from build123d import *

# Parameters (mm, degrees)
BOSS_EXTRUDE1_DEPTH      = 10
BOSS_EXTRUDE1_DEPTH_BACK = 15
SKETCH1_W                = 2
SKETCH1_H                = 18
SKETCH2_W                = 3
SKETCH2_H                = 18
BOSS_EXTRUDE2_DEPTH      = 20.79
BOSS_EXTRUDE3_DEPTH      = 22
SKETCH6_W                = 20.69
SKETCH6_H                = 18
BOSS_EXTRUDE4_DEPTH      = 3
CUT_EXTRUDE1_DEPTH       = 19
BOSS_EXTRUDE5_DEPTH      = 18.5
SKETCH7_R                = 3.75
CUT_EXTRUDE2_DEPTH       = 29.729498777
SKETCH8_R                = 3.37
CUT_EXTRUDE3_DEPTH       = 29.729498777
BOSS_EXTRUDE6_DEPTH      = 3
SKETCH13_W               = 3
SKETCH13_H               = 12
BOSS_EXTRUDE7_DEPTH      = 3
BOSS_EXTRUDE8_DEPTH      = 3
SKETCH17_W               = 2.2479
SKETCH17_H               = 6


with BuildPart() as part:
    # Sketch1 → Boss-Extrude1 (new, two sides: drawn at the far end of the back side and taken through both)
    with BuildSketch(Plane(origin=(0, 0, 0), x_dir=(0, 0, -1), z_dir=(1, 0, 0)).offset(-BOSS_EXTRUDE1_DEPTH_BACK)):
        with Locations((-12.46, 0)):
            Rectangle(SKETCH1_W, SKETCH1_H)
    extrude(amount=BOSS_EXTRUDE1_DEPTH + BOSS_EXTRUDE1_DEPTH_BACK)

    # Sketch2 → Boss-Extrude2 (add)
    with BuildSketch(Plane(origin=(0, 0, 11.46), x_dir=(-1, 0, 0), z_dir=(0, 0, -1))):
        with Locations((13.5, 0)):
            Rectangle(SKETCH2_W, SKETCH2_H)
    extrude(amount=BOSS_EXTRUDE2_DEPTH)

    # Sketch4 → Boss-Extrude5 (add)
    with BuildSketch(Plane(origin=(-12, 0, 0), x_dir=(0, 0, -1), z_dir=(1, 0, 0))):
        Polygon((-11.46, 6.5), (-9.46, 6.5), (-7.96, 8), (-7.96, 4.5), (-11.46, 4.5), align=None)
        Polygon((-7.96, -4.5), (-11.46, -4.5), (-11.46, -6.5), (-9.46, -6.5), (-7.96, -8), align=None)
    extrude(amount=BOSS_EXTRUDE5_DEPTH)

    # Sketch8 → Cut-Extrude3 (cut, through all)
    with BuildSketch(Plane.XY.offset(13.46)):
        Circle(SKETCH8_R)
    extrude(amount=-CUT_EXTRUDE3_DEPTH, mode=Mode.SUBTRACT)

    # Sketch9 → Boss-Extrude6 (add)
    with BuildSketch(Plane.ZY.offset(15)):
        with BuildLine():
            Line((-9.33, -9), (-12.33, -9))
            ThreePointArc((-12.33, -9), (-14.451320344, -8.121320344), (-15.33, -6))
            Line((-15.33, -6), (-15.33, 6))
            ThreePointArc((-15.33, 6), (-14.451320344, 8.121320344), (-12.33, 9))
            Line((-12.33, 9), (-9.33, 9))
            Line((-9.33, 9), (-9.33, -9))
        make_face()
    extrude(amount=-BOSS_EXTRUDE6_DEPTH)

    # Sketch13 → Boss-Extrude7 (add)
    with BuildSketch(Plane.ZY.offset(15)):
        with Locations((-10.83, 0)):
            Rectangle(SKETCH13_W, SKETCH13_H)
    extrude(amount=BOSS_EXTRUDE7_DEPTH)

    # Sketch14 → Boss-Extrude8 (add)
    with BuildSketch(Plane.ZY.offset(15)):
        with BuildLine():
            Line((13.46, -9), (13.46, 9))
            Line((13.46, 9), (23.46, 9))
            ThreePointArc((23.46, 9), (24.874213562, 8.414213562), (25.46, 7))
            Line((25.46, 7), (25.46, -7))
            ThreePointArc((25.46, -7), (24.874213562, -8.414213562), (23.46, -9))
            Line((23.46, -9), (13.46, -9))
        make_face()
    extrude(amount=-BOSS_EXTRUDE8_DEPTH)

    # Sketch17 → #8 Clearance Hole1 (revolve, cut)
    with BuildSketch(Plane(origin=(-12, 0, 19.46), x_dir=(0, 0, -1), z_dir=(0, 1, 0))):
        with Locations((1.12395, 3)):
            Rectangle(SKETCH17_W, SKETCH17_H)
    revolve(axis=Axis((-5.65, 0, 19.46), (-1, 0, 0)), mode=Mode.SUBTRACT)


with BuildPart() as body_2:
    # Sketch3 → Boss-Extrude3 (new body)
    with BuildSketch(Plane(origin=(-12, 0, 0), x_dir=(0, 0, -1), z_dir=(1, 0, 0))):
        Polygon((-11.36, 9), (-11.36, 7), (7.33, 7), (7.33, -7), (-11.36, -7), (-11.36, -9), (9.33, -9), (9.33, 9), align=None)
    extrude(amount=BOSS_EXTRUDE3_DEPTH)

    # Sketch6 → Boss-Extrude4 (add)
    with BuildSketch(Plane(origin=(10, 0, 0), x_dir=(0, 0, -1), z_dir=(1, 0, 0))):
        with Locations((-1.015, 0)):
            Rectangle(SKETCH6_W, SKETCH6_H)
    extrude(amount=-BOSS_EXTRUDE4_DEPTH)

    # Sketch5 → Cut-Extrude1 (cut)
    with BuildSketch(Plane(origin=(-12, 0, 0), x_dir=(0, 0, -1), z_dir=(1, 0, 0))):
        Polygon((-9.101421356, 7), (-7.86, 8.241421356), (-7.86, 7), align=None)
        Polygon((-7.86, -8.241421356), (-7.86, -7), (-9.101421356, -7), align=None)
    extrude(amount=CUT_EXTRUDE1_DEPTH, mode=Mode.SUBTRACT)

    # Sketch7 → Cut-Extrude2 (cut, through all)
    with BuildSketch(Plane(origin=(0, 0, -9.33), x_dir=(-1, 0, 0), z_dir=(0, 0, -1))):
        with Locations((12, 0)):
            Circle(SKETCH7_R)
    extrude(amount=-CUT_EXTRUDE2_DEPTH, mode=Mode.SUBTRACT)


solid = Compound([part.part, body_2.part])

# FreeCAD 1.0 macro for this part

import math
import FreeCAD as App
import Part
import Sketcher
from FreeCAD import Vector

doc = App.newDocument("Part")
params = doc.addObject("Spreadsheet::Sheet", "Params")
for row, (alias, value) in enumerate([
    ("sketch1_width", "18 mm"),
    ("sketch1_height", "2 mm"),
    ("pad1_length", "10 mm"),
    ("pad1_length2", "15 mm"),
    ("sketch2_width", "3 mm"),
    ("sketch2_height", "18 mm"),
    ("pad2_length", "20.79 mm"),
    ("sketch3_width", "2 mm"),
    ("sketch3_width2", "3.5 mm"),
    ("pad3_length", "18.5 mm"),
    ("sketch4_diameter", "6.74 mm"),
    ("sketch5_radius", "3 mm"),
    ("sketch5_width", "18 mm"),
    ("sketch5_height", "3 mm"),
    ("pad4_length", "3 mm"),
    ("sketch6_width", "12 mm"),
    ("sketch6_height", "3 mm"),
    ("pad5_length", "3 mm"),
    ("sketch7_radius", "2 mm"),
    ("sketch7_width", "18 mm"),
    ("sketch7_height", "10 mm"),
    ("pad6_length", "3 mm"),
    ("sketch8_width", "6 mm"),
    ("groove_angle", "360 deg"),
    ("sketch9_width", "2 mm"),
    ("sketch9_width2", "14 mm"),
    ("sketch9_height", "18.69 mm"),
    ("pad7_length", "22 mm"),
    ("sketch10_width", "18 mm"),
    ("sketch10_height", "20.69 mm"),
    ("pad8_length", "3 mm"),
    ("pocket2_length", "19 mm"),
    ("sketch12_diameter", "7.5 mm"),
], start=1):
    params.set(f"A{row}", alias)
    params.set(f"B{row}", "=" + value)
    params.setAlias(f"B{row}", alias)

body = doc.addObject("PartDesign::Body", "Body")

sketch1 = doc.addObject("Sketcher::SketchObject", "Sketch")
body.addObject(sketch1)
sketch1.AttachmentSupport = (doc.YZ_Plane, [""])
sketch1.MapMode = "FlatFace"
sketch1.addGeometry([
    Part.LineSegment(Vector(9, 13.5, 0), Vector(-9, 13.5, 0)),
    Part.LineSegment(Vector(-9, 13.5, 0), Vector(-9, 11.5, 0)),
    Part.LineSegment(Vector(-9, 11.5, 0), Vector(9, 11.5, 0)),
    Part.LineSegment(Vector(9, 11.5, 0), Vector(9, 13.5, 0)),
], False)
sketch1.addConstraint([
    Sketcher.Constraint("Coincident", 0, 2, 1, 1),
    Sketcher.Constraint("Coincident", 1, 2, 2, 1),
    Sketcher.Constraint("Coincident", 2, 2, 3, 1),
    Sketcher.Constraint("Coincident", 3, 2, 0, 1),
    Sketcher.Constraint("Horizontal", 0),
    Sketcher.Constraint("Vertical", 1),
    Sketcher.Constraint("Horizontal", 2),
    Sketcher.Constraint("Vertical", 3),
    Sketcher.Constraint("DistanceX", 0, 2, 0, 1, 18.0),
    Sketcher.Constraint("DistanceY", 1, 2, 1, 1, 2.0),
    Sketcher.Constraint("DistanceX", 0, 2, -1, 1, 9.0),
    Sketcher.Constraint("DistanceY", -1, 1, 0, 2, 13.46),
])
sketch1.setExpression("Constraints[8]", "Params.sketch1_width")
sketch1.setExpression("Constraints[9]", "Params.sketch1_height")
pad1 = doc.addObject("PartDesign::Pad", "Pad")
body.addObject(pad1)
pad1.Profile = sketch1
pad1.Type = "TwoLengths"
pad1.setExpression("Length", "Params.pad1_length")
pad1.setExpression("Length2", "Params.pad1_length2")

sketch2 = doc.addObject("Sketcher::SketchObject", "Sketch001")
body.addObject(sketch2)
sketch2.AttachmentSupport = (doc.XY_Plane, [""])
sketch2.MapMode = "FlatFace"
sketch2.AttachmentOffset = App.Placement(Vector(0, 0, 11.46), App.Rotation())
sketch2.addGeometry([
    Part.LineSegment(Vector(-12, 9, 0), Vector(-12, -9, 0)),
    Part.LineSegment(Vector(-12, -9, 0), Vector(-15, -9, 0)),
    Part.LineSegment(Vector(-15, -9, 0), Vector(-15, 9, 0)),
    Part.LineSegment(Vector(-15, 9, 0), Vector(-12, 9, 0)),
], False)
sketch2.addConstraint([
    Sketcher.Constraint("Coincident", 0, 2, 1, 1),
    Sketcher.Constraint("Coincident", 1, 2, 2, 1),
    Sketcher.Constraint("Coincident", 2, 2, 3, 1),
    Sketcher.Constraint("Coincident", 3, 2, 0, 1),
    Sketcher.Constraint("Vertical", 0),
    Sketcher.Constraint("Horizontal", 1),
    Sketcher.Constraint("Vertical", 2),
    Sketcher.Constraint("Horizontal", 3),
    Sketcher.Constraint("DistanceX", 1, 2, 1, 1, 3.0),
    Sketcher.Constraint("DistanceY", 0, 2, 0, 1, 18.0),
    Sketcher.Constraint("DistanceX", 0, 2, -1, 1, 12.0),
    Sketcher.Constraint("DistanceY", 0, 2, -1, 1, 9.0),
])
sketch2.setExpression("Constraints[8]", "Params.sketch2_width")
sketch2.setExpression("Constraints[9]", "Params.sketch2_height")
pad2 = doc.addObject("PartDesign::Pad", "Pad001")
body.addObject(pad2)
pad2.Profile = sketch2
pad2.setExpression("Length", "Params.pad2_length")
pad2.Reversed = True

sketch3 = doc.addObject("Sketcher::SketchObject", "Sketch002")
body.addObject(sketch3)
sketch3.AttachmentSupport = (doc.YZ_Plane, [""])
sketch3.MapMode = "FlatFace"
sketch3.AttachmentOffset = App.Placement(Vector(0, 0, -12), App.Rotation())
sketch3.addGeometry([
    Part.LineSegment(Vector(6.5, 9.5, 0), Vector(6.5, 11.5, 0)),
    Part.LineSegment(Vector(6.5, 11.5, 0), Vector(4.5, 11.5, 0)),
    Part.LineSegment(Vector(4.5, 11.5, 0), Vector(4.5, 8, 0)),
    Part.LineSegment(Vector(4.5, 8, 0), Vector(8, 8, 0)),
    Part.LineSegment(Vector(8, 8, 0), Vector(6.5, 9.5, 0)),
    Part.LineSegment(Vector(-4.5, 8, 0), Vector(-4.5, 11.5, 0)),
    Part.LineSegment(Vector(-4.5, 11.5, 0), Vector(-6.5, 11.5, 0)),
    Part.LineSegment(Vector(-6.5, 11.5, 0), Vector(-6.5, 9.5, 0)),
    Part.LineSegment(Vector(-6.5, 9.5, 0), Vector(-8, 8, 0)),
    Part.LineSegment(Vector(-8, 8, 0), Vector(-4.5, 8, 0)),
], False)
sketch3.addConstraint([
    Sketcher.Constraint("Coincident", 0, 2, 1, 1),
    Sketcher.Constraint("Coincident", 1, 2, 2, 1),
    Sketcher.Constraint("Coincident", 2, 2, 3, 1),
    Sketcher.Constraint("Coincident", 3, 2, 4, 1),
    Sketcher.Constraint("Coincident", 4, 2, 0, 1),
    Sketcher.Constraint("Coincident", 5, 2, 6, 1),
    Sketcher.Constraint("Coincident", 6, 2, 7, 1),
    Sketcher.Constraint("Coincident", 7, 2, 8, 1),
    Sketcher.Constraint("Coincident", 8, 2, 9, 1),
    Sketcher.Constraint("Coincident", 9, 2, 5, 1),
    Sketcher.Constraint("Vertical", 0),
    Sketcher.Constraint("Horizontal", 1),
    Sketcher.Constraint("Vertical", 2),
    Sketcher.Constraint("Horizontal", 3),
    Sketcher.Constraint("Vertical", 5),
    Sketcher.Constraint("Horizontal", 6),
    Sketcher.Constraint("Vertical", 7),
    Sketcher.Constraint("Horizontal", 9),
    Sketcher.Constraint("Symmetric", 1, 2, 5, 2, -2),
    Sketcher.Constraint("Symmetric", 4, 2, 7, 2, -2),
    Sketcher.Constraint("Symmetric", 3, 2, 8, 2, -2),
    Sketcher.Constraint("Perpendicular", 4, 8),
    Sketcher.Constraint("Equal", 6, 0),
    Sketcher.Constraint("DistanceX", 1, 2, 1, 1, 2.0),
    Sketcher.Constraint("DistanceX", 3, 1, 3, 2, 3.5),
    Sketcher.Constraint("DistanceX", -1, 1, 3, 2, 8.0),
    Sketcher.Constraint("DistanceY", -1, 1, 0, 2, 11.46),
])
sketch3.setExpression("Constraints[23]", "Params.sketch3_width")
sketch3.setExpression("Constraints[24]", "Params.sketch3_width2")
pad3 = doc.addObject("PartDesign::Pad", "Pad002")
body.addObject(pad3)
pad3.Profile = sketch3
pad3.setExpression("Length", "Params.pad3_length")

sketch4 = doc.addObject("Sketcher::SketchObject", "Sketch003")
body.addObject(sketch4)
sketch4.AttachmentSupport = (doc.XY_Plane, [""])
sketch4.MapMode = "FlatFace"
sketch4.AttachmentOffset = App.Placement(Vector(0, 0, 13.46), App.Rotation())
sketch4.addGeometry(Part.Circle(Vector(0, 0, 0), Vector(0, 0, 1), 3.4), False)
sketch4.addConstraint([
    Sketcher.Constraint("Coincident", 0, 3, -1, 1),
    Sketcher.Constraint("Diameter", 0, 6.74),
])
sketch4.setExpression("Constraints[1]", "Params.sketch4_diameter")
pocket1 = doc.addObject("PartDesign::Pocket", "Pocket")
body.addObject(pocket1)
pocket1.Profile = sketch4
pocket1.Type = "ThroughAll"

sketch5 = doc.addObject("Sketcher::SketchObject", "Sketch004")
body.addObject(sketch5)
sketch5.AttachmentSupport = (doc.YZ_Plane, [""])
sketch5.MapMode = "FlatFace"
sketch5.AttachmentOffset = App.Placement(Vector(0, 0, -15), App.Rotation())
sketch5.addGeometry([
    Part.LineSegment(Vector(-9, -12.3, 0), Vector(-9, -9.3, 0)),
    Part.LineSegment(Vector(-9, -9.3, 0), Vector(9, -9.3, 0)),
    Part.LineSegment(Vector(9, -9.3, 0), Vector(9, -12.3, 0)),
    Part.ArcOfCircle(Part.Circle(Vector(6, -12.3, 0), Vector(0, 0, 1), 3), math.radians(-90), math.radians(0)),
    Part.LineSegment(Vector(6, -15.3, 0), Vector(-6, -15.3, 0)),
    Part.ArcOfCircle(Part.Circle(Vector(-6, -12.3, 0), Vector(0, 0, 1), 3), math.radians(180), math.radians(270)),
], False)
sketch5.addConstraint([
    Sketcher.Constraint("Coincident", 0, 2, 1, 1),
    Sketcher.Constraint("Coincident", 1, 2, 2, 1),
    Sketcher.Constraint("Tangent", 2, 2, 3, 2),
    Sketcher.Constraint("Tangent", 3, 1, 4, 1),
    Sketcher.Constraint("Tangent", 4, 2, 5, 2),
    Sketcher.Constraint("Tangent", 5, 1, 0, 1),
    Sketcher.Constraint("Vertical", 0),
    Sketcher.Constraint("Horizontal", 1),
    Sketcher.Constraint("Vertical", 2),
    Sketcher.Constraint("Horizontal", 4),
    Sketcher.Constraint("Equal", 3, 5),
    Sketcher.Constraint("Radius", 3, 3.0),
    Sketcher.Constraint("DistanceX", 1, 1, 1, 2, 18.0),
    Sketcher.Constraint("DistanceY", 0, 1, 0, 2, 3.0),
    Sketcher.Constraint("DistanceX", -1, 1, 3, 3, 6.0),
    Sketcher.Constraint("DistanceY", 3, 3, -1, 1, 12.33),
])
sketch5.setExpression("Constraints[11]", "Params.sketch5_radius")
sketch5.setExpression("Constraints[12]", "Params.sketch5_width")
sketch5.setExpression("Constraints[13]", "Params.sketch5_height")
pad4 = doc.addObject("PartDesign::Pad", "Pad003")
body.addObject(pad4)
pad4.Profile = sketch5
pad4.setExpression("Length", "Params.pad4_length")

sketch6 = doc.addObject("Sketcher::SketchObject", "Sketch005")
body.addObject(sketch6)
sketch6.AttachmentSupport = (doc.YZ_Plane, [""])
sketch6.MapMode = "FlatFace"
sketch6.AttachmentOffset = App.Placement(Vector(0, 0, -15), App.Rotation())
sketch6.addGeometry([
    Part.LineSegment(Vector(6, -12.3, 0), Vector(-6, -12.3, 0)),
    Part.LineSegment(Vector(-6, -12.3, 0), Vector(-6, -9.3, 0)),
    Part.LineSegment(Vector(-6, -9.3, 0), Vector(6, -9.3, 0)),
    Part.LineSegment(Vector(6, -9.3, 0), Vector(6, -12.3, 0)),
], False)
sketch6.addConstraint([
    Sketcher.Constraint("Coincident", 0, 2, 1, 1),
    Sketcher.Constraint("Coincident", 1, 2, 2, 1),
    Sketcher.Constraint("Coincident", 2, 2, 3, 1),
    Sketcher.Constraint("Coincident", 3, 2, 0, 1),
    Sketcher.Constraint("Horizontal", 0),
    Sketcher.Constraint("Vertical", 1),
    Sketcher.Constraint("Horizontal", 2),
    Sketcher.Constraint("Vertical", 3),
    Sketcher.Constraint("DistanceX", 0, 2, 0, 1, 12.0),
    Sketcher.Constraint("DistanceY", 1, 1, 1, 2, 3.0),
    Sketcher.Constraint("DistanceX", 0, 2, -1, 1, 6.0),
    Sketcher.Constraint("DistanceY", 0, 2, -1, 1, 12.33),
])
sketch6.setExpression("Constraints[8]", "Params.sketch6_width")
sketch6.setExpression("Constraints[9]", "Params.sketch6_height")
pad5 = doc.addObject("PartDesign::Pad", "Pad004")
body.addObject(pad5)
pad5.Profile = sketch6
pad5.setExpression("Length", "Params.pad5_length")
pad5.Reversed = True

sketch7 = doc.addObject("Sketcher::SketchObject", "Sketch006")
body.addObject(sketch7)
sketch7.AttachmentSupport = (doc.YZ_Plane, [""])
sketch7.MapMode = "FlatFace"
sketch7.AttachmentOffset = App.Placement(Vector(0, 0, -15), App.Rotation())
sketch7.addGeometry([
    Part.LineSegment(Vector(9, 13.5, 0), Vector(-9, 13.5, 0)),
    Part.LineSegment(Vector(-9, 13.5, 0), Vector(-9, 23.5, 0)),
    Part.ArcOfCircle(Part.Circle(Vector(-7, 23.5, 0), Vector(0, 0, 1), 2), math.radians(90), math.radians(180)),
    Part.LineSegment(Vector(-7, 25.5, 0), Vector(7, 25.5, 0)),
    Part.ArcOfCircle(Part.Circle(Vector(7, 23.5, 0), Vector(0, 0, 1), 2), math.radians(0), math.radians(90)),
    Part.LineSegment(Vector(9, 23.5, 0), Vector(9, 13.5, 0)),
], False)
sketch7.addConstraint([
    Sketcher.Constraint("Coincident", 0, 2, 1, 1),
    Sketcher.Constraint("Tangent", 1, 2, 2, 2),
    Sketcher.Constraint("Tangent", 2, 1, 3, 1),
    Sketcher.Constraint("Tangent", 3, 2, 4, 2),
    Sketcher.Constraint("Tangent", 4, 1, 5, 1),
    Sketcher.Constraint("Coincident", 5, 2, 0, 1),
    Sketcher.Constraint("Horizontal", 0),
    Sketcher.Constraint("Vertical", 1),
    Sketcher.Constraint("Horizontal", 3),
    Sketcher.Constraint("Vertical", 5),
    Sketcher.Constraint("Equal", 2, 4),
    Sketcher.Constraint("Radius", 2, 2.0),
    Sketcher.Constraint("DistanceX", 0, 2, 0, 1, 18.0),
    Sketcher.Constraint("DistanceY", 1, 1, 1, 2, 10.0),
    Sketcher.Constraint("DistanceX", 2, 3, -1, 1, 7.0),
    Sketcher.Constraint("DistanceY", -1, 1, 2, 3, 23.46),
])
sketch7.setExpression("Constraints[11]", "Params.sketch7_radius")
sketch7.setExpression("Constraints[12]", "Params.sketch7_width")
sketch7.setExpression("Constraints[13]", "Params.sketch7_height")
pad6 = doc.addObject("PartDesign::Pad", "Pad005")
body.addObject(pad6)
pad6.Profile = sketch7
pad6.setExpression("Length", "Params.pad6_length")

sketch8 = doc.addObject("Sketcher::SketchObject", "Sketch007")
body.addObject(sketch8)
sketch8.AttachmentSupport = (doc.XZ_Plane, [""])
sketch8.MapMode = "FlatFace"
sketch8.addGeometry([
    Part.LineSegment(Vector(-18, 19.5, 0), Vector(-12, 19.5, 0)),
    Part.LineSegment(Vector(-12, 19.5, 0), Vector(-12, 17.2, 0)),
    Part.LineSegment(Vector(-12, 17.2, 0), Vector(-18, 17.2, 0)),
    Part.LineSegment(Vector(-18, 17.2, 0), Vector(-18, 19.5, 0)),
], False)
sketch8.addGeometry(Part.LineSegment(Vector(-12, 19.5, 0), Vector(-18, 19.5, 0)), True)
sketch8.addConstraint([
    Sketcher.Constraint("Coincident", 0, 2, 1, 1),
    Sketcher.Constraint("Coincident", 1, 2, 2, 1),
    Sketcher.Constraint("Coincident", 2, 2, 3, 1),
    Sketcher.Constraint("Coincident", 3, 2, 0, 1),
    Sketcher.Constraint("Horizontal", 0),
    Sketcher.Constraint("Vertical", 1),
    Sketcher.Constraint("Horizontal", 2),
    Sketcher.Constraint("Vertical", 3),
    Sketcher.Constraint("Horizontal", 4),
    Sketcher.Constraint("Coincident", 4, 1, 0, 2),
    Sketcher.Constraint("Vertical", 2, 2, 4, 2),
    Sketcher.Constraint("DistanceX", 0, 1, 0, 2, 6.0),
    Sketcher.Constraint("DistanceX", 0, 2, -1, 1, 12.0),
    Sketcher.Constraint("DistanceY", -1, 1, 0, 2, 19.46),
    Sketcher.Constraint("DistanceY", 1, 2, 1, 1, 2.2479),
])
sketch8.setExpression("Constraints[11]", "Params.sketch8_width")
groove = doc.addObject("PartDesign::Groove", "Groove")
body.addObject(groove)
groove.Profile = sketch8
groove.ReferenceAxis = (sketch8, ["Axis0"])
groove.setExpression("Angle", "Params.groove_angle")
body2 = doc.addObject("PartDesign::Body", "Body001")

sketch9 = doc.addObject("Sketcher::SketchObject", "Sketch008")
body2.addObject(sketch9)
sketch9.AttachmentSupport = (doc.getObject("YZ_Plane001"), [""])
sketch9.MapMode = "FlatFace"
sketch9.AttachmentOffset = App.Placement(Vector(0, 0, -12), App.Rotation())
sketch9.addGeometry([
    Part.LineSegment(Vector(9, 11.4, 0), Vector(7, 11.4, 0)),
    Part.LineSegment(Vector(7, 11.4, 0), Vector(7, -7.3, 0)),
    Part.LineSegment(Vector(7, -7.3, 0), Vector(-7, -7.3, 0)),
    Part.LineSegment(Vector(-7, -7.3, 0), Vector(-7, 11.4, 0)),
    Part.LineSegment(Vector(-7, 11.4, 0), Vector(-9, 11.4, 0)),
    Part.LineSegment(Vector(-9, 11.4, 0), Vector(-9, -9.3, 0)),
    Part.LineSegment(Vector(-9, -9.3, 0), Vector(9, -9.3, 0)),
    Part.LineSegment(Vector(9, -9.3, 0), Vector(9, 11.4, 0)),
], False)
sketch9.addConstraint([
    Sketcher.Constraint("Coincident", 0, 2, 1, 1),
    Sketcher.Constraint("Coincident", 1, 2, 2, 1),
    Sketcher.Constraint("Coincident", 2, 2, 3, 1),
    Sketcher.Constraint("Coincident", 3, 2, 4, 1),
    Sketcher.Constraint("Coincident", 4, 2, 5, 1),
    Sketcher.Constraint("Coincident", 5, 2, 6, 1),
    Sketcher.Constraint("Coincident", 6, 2, 7, 1),
    Sketcher.Constraint("Coincident", 7, 2, 0, 1),
    Sketcher.Constraint("Horizontal", 0),
    Sketcher.Constraint("Vertical", 1),
    Sketcher.Constraint("Horizontal", 2),
    Sketcher.Constraint("Vertical", 3),
    Sketcher.Constraint("Horizontal", 4),
    Sketcher.Constraint("Vertical", 5),
    Sketcher.Constraint("Horizontal", 6),
    Sketcher.Constraint("Vertical", 7),
    Sketcher.Constraint("Symmetric", 0, 2, 3, 2, -2),
    Sketcher.Constraint("Equal", 0, 4),
    Sketcher.Constraint("DistanceX", 0, 2, 0, 1, 2.0),
    Sketcher.Constraint("DistanceX", 2, 2, 2, 1, 14.0),
    Sketcher.Constraint("DistanceY", 5, 2, 2, 2, 2.0),
    Sketcher.Constraint("DistanceY", 1, 2, 1, 1, 18.69),
    Sketcher.Constraint("DistanceY", -1, 1, 0, 2, 11.36),
])
sketch9.setExpression("Constraints[18]", "Params.sketch9_width")
sketch9.setExpression("Constraints[19]", "Params.sketch9_width2")
sketch9.setExpression("Constraints[21]", "Params.sketch9_height")
pad7 = doc.addObject("PartDesign::Pad", "Pad006")
body2.addObject(pad7)
pad7.Profile = sketch9
pad7.setExpression("Length", "Params.pad7_length")

sketch10 = doc.addObject("Sketcher::SketchObject", "Sketch009")
body2.addObject(sketch10)
sketch10.AttachmentSupport = (doc.getObject("YZ_Plane001"), [""])
sketch10.MapMode = "FlatFace"
sketch10.AttachmentOffset = App.Placement(Vector(0, 0, 10), App.Rotation())
sketch10.addGeometry([
    Part.LineSegment(Vector(9, 11, 0), Vector(-9, 11, 0)),
    Part.LineSegment(Vector(-9, 11, 0), Vector(-9, -9, 0)),
    Part.LineSegment(Vector(-9, -9, 0), Vector(9, -9, 0)),
    Part.LineSegment(Vector(9, -9, 0), Vector(9, 11, 0)),
], False)
sketch10.addConstraint([
    Sketcher.Constraint("Coincident", 0, 2, 1, 1),
    Sketcher.Constraint("Coincident", 1, 2, 2, 1),
    Sketcher.Constraint("Coincident", 2, 2, 3, 1),
    Sketcher.Constraint("Coincident", 3, 2, 0, 1),
    Sketcher.Constraint("Horizontal", 0),
    Sketcher.Constraint("Vertical", 1),
    Sketcher.Constraint("Horizontal", 2),
    Sketcher.Constraint("Vertical", 3),
    Sketcher.Constraint("DistanceX", 0, 2, 0, 1, 18.0),
    Sketcher.Constraint("DistanceX", 0, 2, -1, 1, 9.0),
    Sketcher.Constraint("DistanceY", 1, 2, 1, 1, 20.69),
    Sketcher.Constraint("DistanceY", -1, 1, 0, 2, 11.36),
])
sketch10.setExpression("Constraints[8]", "Params.sketch10_width")
sketch10.setExpression("Constraints[10]", "Params.sketch10_height")
pad8 = doc.addObject("PartDesign::Pad", "Pad007")
body2.addObject(pad8)
pad8.Profile = sketch10
pad8.setExpression("Length", "Params.pad8_length")
pad8.Reversed = True

sketch11 = doc.addObject("Sketcher::SketchObject", "Sketch010")
body2.addObject(sketch11)
sketch11.AttachmentSupport = (doc.getObject("YZ_Plane001"), [""])
sketch11.MapMode = "FlatFace"
sketch11.AttachmentOffset = App.Placement(Vector(0, 0, -12), App.Rotation())
sketch11.addGeometry([
    Part.LineSegment(Vector(8.2, 7.9, 0), Vector(7, 9.1, 0)),
    Part.LineSegment(Vector(7, 9.1, 0), Vector(7, 7.9, 0)),
    Part.LineSegment(Vector(7, 7.9, 0), Vector(8.2, 7.9, 0)),
    Part.LineSegment(Vector(-8.2, 7.9, 0), Vector(-7, 7.9, 0)),
    Part.LineSegment(Vector(-7, 7.9, 0), Vector(-7, 9.1, 0)),
    Part.LineSegment(Vector(-7, 9.1, 0), Vector(-8.2, 7.9, 0)),
], False)
sketch11.addConstraint([
    Sketcher.Constraint("Coincident", 0, 2, 1, 1),
    Sketcher.Constraint("Coincident", 1, 2, 2, 1),
    Sketcher.Constraint("Coincident", 2, 2, 0, 1),
    Sketcher.Constraint("Coincident", 3, 2, 4, 1),
    Sketcher.Constraint("Coincident", 4, 2, 5, 1),
    Sketcher.Constraint("Coincident", 5, 2, 3, 1),
    Sketcher.Constraint("Vertical", 1),
    Sketcher.Constraint("Horizontal", 2),
    Sketcher.Constraint("Horizontal", 3),
    Sketcher.Constraint("Vertical", 4),
    Sketcher.Constraint("Symmetric", 1, 2, 3, 2, -2),
    Sketcher.Constraint("Perpendicular", 0, 5),
    Sketcher.Constraint("Horizontal", 0, 2, 4, 2),
    Sketcher.Constraint("Equal", 2, 3),
    Sketcher.Constraint("DistanceX", -1, 1, 0, 2, 7.0),
    Sketcher.Constraint("DistanceY", -1, 1, 1, 2, 7.86),
    Sketcher.Constraint("DistanceX", 2, 1, 2, 2, 1.241421),
])
pocket2 = doc.addObject("PartDesign::Pocket", "Pocket001")
body2.addObject(pocket2)
pocket2.Profile = sketch11
pocket2.setExpression("Length", "Params.pocket2_length")
pocket2.Reversed = True

sketch12 = doc.addObject("Sketcher::SketchObject", "Sketch011")
body2.addObject(sketch12)
sketch12.AttachmentSupport = (doc.getObject("XY_Plane001"), [""])
sketch12.MapMode = "FlatFace"
sketch12.AttachmentOffset = App.Placement(Vector(0, 0, -9.33), App.Rotation())
sketch12.addGeometry(Part.Circle(Vector(-12, 0, 0), Vector(0, 0, 1), 3.8), False)
sketch12.addConstraint([
    Sketcher.Constraint("PointOnObject", 0, 3, -1),
    Sketcher.Constraint("Diameter", 0, 7.5),
    Sketcher.Constraint("DistanceX", 0, 3, -1, 1, 12.0),
])
sketch12.setExpression("Constraints[1]", "Params.sketch12_diameter")
pocket3 = doc.addObject("PartDesign::Pocket", "Pocket002")
body2.addObject(pocket3)
pocket3.Profile = sketch12
pocket3.Type = "ThroughAll"
pocket3.Reversed = True

doc.recompute()
